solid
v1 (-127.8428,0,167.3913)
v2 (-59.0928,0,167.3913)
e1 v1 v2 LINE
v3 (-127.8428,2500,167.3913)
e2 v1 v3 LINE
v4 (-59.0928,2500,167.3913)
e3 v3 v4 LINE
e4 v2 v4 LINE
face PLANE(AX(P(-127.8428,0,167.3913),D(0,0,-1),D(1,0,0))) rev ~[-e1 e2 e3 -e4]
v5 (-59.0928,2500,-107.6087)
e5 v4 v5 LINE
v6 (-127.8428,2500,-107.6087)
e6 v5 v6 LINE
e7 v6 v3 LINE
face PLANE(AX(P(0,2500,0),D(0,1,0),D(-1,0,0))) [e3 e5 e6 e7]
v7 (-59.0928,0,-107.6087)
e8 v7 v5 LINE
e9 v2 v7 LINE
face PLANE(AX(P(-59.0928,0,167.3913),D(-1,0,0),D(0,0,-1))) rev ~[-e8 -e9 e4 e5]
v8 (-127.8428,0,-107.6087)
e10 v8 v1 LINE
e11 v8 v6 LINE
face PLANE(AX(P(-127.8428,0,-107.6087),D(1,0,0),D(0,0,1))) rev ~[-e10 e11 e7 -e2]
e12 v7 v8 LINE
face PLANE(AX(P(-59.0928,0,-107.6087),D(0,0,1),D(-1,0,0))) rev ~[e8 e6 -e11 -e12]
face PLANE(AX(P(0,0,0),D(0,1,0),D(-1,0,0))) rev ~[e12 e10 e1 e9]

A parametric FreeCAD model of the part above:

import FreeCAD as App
import Part
import Sketcher
Q = App.Units.Quantity


def add_polygon(sketch, points):
    """Adds a closed chain of lines whose ends are joined by coincident constraints."""
    first, n = sketch.GeometryCount, len(points)
    for a, b in zip(points, points[1:] + points[:1]):
        sketch.addGeometry(Part.LineSegment(App.Vector(*a, 0), App.Vector(*b, 0)), False)
    for i in range(n):
        sketch.addConstraint(Sketcher.Constraint("Coincident", first + i, 2, first + (i + 1) % n, 1))

doc = App.newDocument("Part")
body = doc.addObject("PartDesign::Body", "Body")

# Sketch on XZ plane
sketch1 = body.newObject("Sketcher::SketchObject", "Sketch")
sketch1.AttachmentSupport = (doc.getObject("XZ_Plane"), [""])
sketch1.MapMode = "FlatFace"
add_polygon(sketch1, [(-127.8428, -107.6087), (-127.8428, 167.3913), (-59.0928, 167.3913), (-59.0928, -107.6087)])  # lines 0-3
sketch1.addConstraint(Sketcher.Constraint("Vertical", 0))
sketch1.addConstraint(Sketcher.Constraint("Horizontal", 1))
sketch1.addConstraint(Sketcher.Constraint("Vertical", 2))
sketch1.addConstraint(Sketcher.Constraint("Horizontal", 3))
sketch1.addConstraint(Sketcher.Constraint("DistanceY", 0, 1, 0, 2, Q("275 mm")))
sketch1.addConstraint(Sketcher.Constraint("DistanceX", 1, 1, 1, 2, Q("68.75 mm")))
sketch1.addConstraint(Sketcher.Constraint("DistanceX", 0, 2, -1, 1, Q("127.8428 mm")))
sketch1.addConstraint(Sketcher.Constraint("DistanceY", -1, 1, 0, 2, Q("167.3913 mm")))
pad1 = body.newObject("PartDesign::Pad", "Pad")
pad1.Profile = sketch1
pad1.Length = 2500
pad1.Reversed = True

doc.recompute()
